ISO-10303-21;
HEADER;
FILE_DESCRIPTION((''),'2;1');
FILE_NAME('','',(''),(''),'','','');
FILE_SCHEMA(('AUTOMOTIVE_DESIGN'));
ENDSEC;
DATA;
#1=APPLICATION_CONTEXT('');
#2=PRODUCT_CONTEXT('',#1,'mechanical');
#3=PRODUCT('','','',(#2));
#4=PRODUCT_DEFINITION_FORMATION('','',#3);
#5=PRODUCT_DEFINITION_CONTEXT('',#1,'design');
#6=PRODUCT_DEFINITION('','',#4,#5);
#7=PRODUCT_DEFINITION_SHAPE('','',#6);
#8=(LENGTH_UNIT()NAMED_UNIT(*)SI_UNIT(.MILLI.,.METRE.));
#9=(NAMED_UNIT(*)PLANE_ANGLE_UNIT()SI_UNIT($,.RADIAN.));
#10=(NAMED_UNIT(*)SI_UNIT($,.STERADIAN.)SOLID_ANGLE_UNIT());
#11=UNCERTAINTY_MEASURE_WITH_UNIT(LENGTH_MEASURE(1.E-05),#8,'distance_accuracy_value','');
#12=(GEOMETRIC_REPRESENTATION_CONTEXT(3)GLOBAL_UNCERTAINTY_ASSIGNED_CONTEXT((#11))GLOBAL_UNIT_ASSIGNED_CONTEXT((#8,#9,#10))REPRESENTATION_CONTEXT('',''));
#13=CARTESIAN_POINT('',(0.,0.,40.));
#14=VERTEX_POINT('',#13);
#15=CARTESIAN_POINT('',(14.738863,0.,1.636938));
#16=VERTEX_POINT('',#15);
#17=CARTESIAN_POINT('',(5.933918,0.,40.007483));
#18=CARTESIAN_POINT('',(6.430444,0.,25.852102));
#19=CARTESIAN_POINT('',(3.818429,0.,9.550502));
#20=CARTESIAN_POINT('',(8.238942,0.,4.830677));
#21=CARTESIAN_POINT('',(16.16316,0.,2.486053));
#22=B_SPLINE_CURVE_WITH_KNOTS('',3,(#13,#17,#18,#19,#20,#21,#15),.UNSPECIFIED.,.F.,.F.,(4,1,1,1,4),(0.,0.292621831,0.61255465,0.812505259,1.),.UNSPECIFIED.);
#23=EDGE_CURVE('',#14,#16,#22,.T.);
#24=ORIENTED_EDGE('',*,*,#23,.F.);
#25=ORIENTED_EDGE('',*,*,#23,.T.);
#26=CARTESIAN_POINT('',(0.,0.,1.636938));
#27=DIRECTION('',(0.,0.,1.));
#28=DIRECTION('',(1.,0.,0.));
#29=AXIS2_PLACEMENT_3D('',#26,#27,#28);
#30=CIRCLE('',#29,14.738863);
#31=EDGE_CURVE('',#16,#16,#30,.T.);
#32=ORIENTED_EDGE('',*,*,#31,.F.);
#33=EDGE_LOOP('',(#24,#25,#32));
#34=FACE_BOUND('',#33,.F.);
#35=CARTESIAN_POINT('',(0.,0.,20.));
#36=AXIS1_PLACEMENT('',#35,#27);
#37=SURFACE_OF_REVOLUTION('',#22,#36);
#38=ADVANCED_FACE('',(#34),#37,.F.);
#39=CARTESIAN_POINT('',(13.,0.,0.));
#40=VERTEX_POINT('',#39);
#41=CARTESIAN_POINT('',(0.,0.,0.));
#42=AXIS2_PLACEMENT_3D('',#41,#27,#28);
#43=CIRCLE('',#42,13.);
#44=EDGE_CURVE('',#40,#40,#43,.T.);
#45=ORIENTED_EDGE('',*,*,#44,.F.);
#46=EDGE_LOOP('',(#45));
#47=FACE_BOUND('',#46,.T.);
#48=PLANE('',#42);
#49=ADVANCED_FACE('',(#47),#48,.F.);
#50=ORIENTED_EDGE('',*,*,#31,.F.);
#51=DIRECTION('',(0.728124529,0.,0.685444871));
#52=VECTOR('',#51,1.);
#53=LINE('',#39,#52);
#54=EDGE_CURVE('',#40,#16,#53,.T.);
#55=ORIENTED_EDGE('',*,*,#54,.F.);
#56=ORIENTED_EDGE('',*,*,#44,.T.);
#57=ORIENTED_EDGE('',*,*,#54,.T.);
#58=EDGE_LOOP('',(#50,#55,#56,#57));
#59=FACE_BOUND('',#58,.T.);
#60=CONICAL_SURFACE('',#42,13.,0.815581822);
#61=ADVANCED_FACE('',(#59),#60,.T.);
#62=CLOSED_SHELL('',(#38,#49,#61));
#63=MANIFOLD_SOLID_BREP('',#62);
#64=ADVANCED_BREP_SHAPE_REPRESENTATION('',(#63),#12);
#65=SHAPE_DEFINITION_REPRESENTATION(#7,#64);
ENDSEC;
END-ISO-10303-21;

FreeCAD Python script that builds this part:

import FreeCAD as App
import Part
import Sketcher
from FreeCAD import Vector
Q = App.Units.Quantity

doc = App.newDocument("Part")
body = doc.addObject("PartDesign::Body", "Body")

sketch1 = doc.addObject("Sketcher::SketchObject", "Sketch")
body.addObject(sketch1)
sketch1.AttachmentSupport = (doc.XZ_Plane, [""])
sketch1.MapMode = "FlatFace"
sketch1.addGeometry([
    Part.LineSegment(Vector(0, 0, 0), Vector(13, 0, 0)),
    Part.LineSegment(Vector(13, 0, 0), Vector(14.738863, 1.636938, 0)),
    Part.BSplineCurve([Vector(0, 40, 0), Vector(5.933918, 40.007483, 0), Vector(6.430444, 25.852102, 0), Vector(3.818429, 9.550502, 0), Vector(8.238942, 4.830677, 0), Vector(16.16316, 2.486053, 0), Vector(14.738863, 1.636938, 0)], [4, 1, 1, 1, 4], [0, 0.292621831, 0.61255465, 0.812505259, 1], False, 3, [1, 1, 1, 1, 1, 1, 1], False),
    Part.LineSegment(Vector(0, 40, 0), Vector(0, 0, 0)),
], False)
sketch1.addConstraint([
    Sketcher.Constraint("Block", 2),
    Sketcher.Constraint("Coincident", 0, 2, 1, 1),
    Sketcher.Constraint("Coincident", 1, 2, 2, 2),
    Sketcher.Constraint("Coincident", 2, 1, 3, 1),
    Sketcher.Constraint("Coincident", 3, 2, 0, 1),
    Sketcher.Constraint("Horizontal", 0),
    Sketcher.Constraint("Vertical", 3),
    Sketcher.Constraint("PointOnObject", 0, 2, -1),
    Sketcher.Constraint("DistanceX", 0, 1, 0, 2, Q("13 mm")),
])
revolution = doc.addObject("PartDesign::Revolution", "Revolution")
body.addObject(revolution)
revolution.Profile = sketch1
revolution.ReferenceAxis = (sketch1, ["V_Axis"])
revolution.Angle = 360

doc.recompute()
